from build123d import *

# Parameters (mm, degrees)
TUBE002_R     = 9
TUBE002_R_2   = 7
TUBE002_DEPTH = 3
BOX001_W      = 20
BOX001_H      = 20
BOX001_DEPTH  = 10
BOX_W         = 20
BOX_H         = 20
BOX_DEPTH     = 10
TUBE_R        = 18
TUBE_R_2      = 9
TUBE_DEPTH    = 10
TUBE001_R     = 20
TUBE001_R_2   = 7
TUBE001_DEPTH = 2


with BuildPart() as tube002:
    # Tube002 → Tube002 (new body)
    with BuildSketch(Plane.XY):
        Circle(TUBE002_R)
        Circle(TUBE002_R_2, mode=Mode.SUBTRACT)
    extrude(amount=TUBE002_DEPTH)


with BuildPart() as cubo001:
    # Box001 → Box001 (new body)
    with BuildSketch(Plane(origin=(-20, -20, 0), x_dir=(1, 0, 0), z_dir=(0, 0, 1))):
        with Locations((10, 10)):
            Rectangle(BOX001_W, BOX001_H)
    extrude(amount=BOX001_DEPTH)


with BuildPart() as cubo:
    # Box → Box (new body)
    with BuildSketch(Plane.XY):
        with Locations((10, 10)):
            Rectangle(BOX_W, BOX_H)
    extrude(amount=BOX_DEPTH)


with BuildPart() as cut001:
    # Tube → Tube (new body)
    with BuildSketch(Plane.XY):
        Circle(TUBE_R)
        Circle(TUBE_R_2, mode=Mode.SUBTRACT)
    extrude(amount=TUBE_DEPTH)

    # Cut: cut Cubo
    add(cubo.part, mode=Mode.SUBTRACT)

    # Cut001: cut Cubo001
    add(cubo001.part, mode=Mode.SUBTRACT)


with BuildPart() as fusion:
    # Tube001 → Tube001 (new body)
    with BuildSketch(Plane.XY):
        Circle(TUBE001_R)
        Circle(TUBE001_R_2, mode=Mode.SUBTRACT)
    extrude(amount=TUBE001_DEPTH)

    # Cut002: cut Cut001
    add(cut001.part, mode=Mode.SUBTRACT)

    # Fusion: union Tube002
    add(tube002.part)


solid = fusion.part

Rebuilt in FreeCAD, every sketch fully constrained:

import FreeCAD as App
import Part
import Sketcher

doc = App.newDocument("Part")
body = doc.addObject("PartDesign::Body", "Body")

# Sketch on XY plane
sketch1 = body.newObject("Sketcher::SketchObject", "Sketch")
sketch1.AttachmentSupport = (doc.getObject("XY_Plane"), [""])
sketch1.MapMode = "FlatFace"
sketch1.addGeometry([
    Part.Circle(App.Vector(0, 0, 0), App.Vector(0, 0, 1), 9),
    Part.Circle(App.Vector(0, 0, 0), App.Vector(0, 0, 1), 7),
], False)
sketch1.addConstraint([
    Sketcher.Constraint("Coincident", 0, 3, -1, 1),
    Sketcher.Constraint("Coincident", 1, 3, -1, 1),
    Sketcher.Constraint("Diameter", 0, 18.0),
    Sketcher.Constraint("Diameter", 1, 14.0),
])
pad1 = body.newObject("PartDesign::Pad", "Pad")
pad1.Profile = sketch1
pad1.Length = 3
body2 = doc.addObject("PartDesign::Body", "Body001")

# Sketch on XY plane
sketch2 = body2.newObject("Sketcher::SketchObject", "Sketch001")
sketch2.AttachmentSupport = (doc.getObject("XY_Plane001"), [""])
sketch2.MapMode = "FlatFace"
sketch2.addGeometry([
    Part.LineSegment(App.Vector(-20, 0, 0), App.Vector(-20, -20, 0)),
    Part.LineSegment(App.Vector(-20, -20, 0), App.Vector(0, -20, 0)),
    Part.LineSegment(App.Vector(0, -20, 0), App.Vector(0, 0, 0)),
    Part.LineSegment(App.Vector(0, 0, 0), App.Vector(-20, 0, 0)),
], False)
sketch2.addConstraint([
    Sketcher.Constraint("Coincident", 0, 2, 1, 1),
    Sketcher.Constraint("Coincident", 1, 2, 2, 1),
    Sketcher.Constraint("Coincident", 2, 2, 3, 1),
    Sketcher.Constraint("Coincident", 3, 2, 0, 1),
    Sketcher.Constraint("Vertical", 0),
    Sketcher.Constraint("Horizontal", 1),
    Sketcher.Constraint("Vertical", 2),
    Sketcher.Constraint("Horizontal", 3),
    Sketcher.Constraint("Coincident", 2, 2, -1, 1),
    Sketcher.Constraint("Equal", 3, 0),
    Sketcher.Constraint("DistanceX", 1, 1, 1, 2, 20.0),
])
pad2 = body2.newObject("PartDesign::Pad", "Pad001")
pad2.Profile = sketch2
pad2.Length = 10
body3 = doc.addObject("PartDesign::Body", "Body002")

# Sketch on XY plane
sketch3 = body3.newObject("Sketcher::SketchObject", "Sketch002")
sketch3.AttachmentSupport = (doc.getObject("XY_Plane002"), [""])
sketch3.MapMode = "FlatFace"
sketch3.addGeometry([
    Part.LineSegment(App.Vector(0, 20, 0), App.Vector(0, 0, 0)),
    Part.LineSegment(App.Vector(0, 0, 0), App.Vector(20, 0, 0)),
    Part.LineSegment(App.Vector(20, 0, 0), App.Vector(20, 20, 0)),
    Part.LineSegment(App.Vector(20, 20, 0), App.Vector(0, 20, 0)),
], False)
sketch3.addConstraint([
    Sketcher.Constraint("Coincident", 0, 2, 1, 1),
    Sketcher.Constraint("Coincident", 1, 2, 2, 1),
    Sketcher.Constraint("Coincident", 2, 2, 3, 1),
    Sketcher.Constraint("Coincident", 3, 2, 0, 1),
    Sketcher.Constraint("Vertical", 0),
    Sketcher.Constraint("Horizontal", 1),
    Sketcher.Constraint("Vertical", 2),
    Sketcher.Constraint("Horizontal", 3),
    Sketcher.Constraint("Coincident", 0, 2, -1, 1),
    Sketcher.Constraint("Equal", 3, 0),
    Sketcher.Constraint("DistanceX", 1, 1, 1, 2, 20.0),
])
pad3 = body3.newObject("PartDesign::Pad", "Pad002")
pad3.Profile = sketch3
pad3.Length = 10
body4 = doc.addObject("PartDesign::Body", "Body003")
body4.AllowCompound = True

# Sketch on XY plane
sketch4 = body4.newObject("Sketcher::SketchObject", "Sketch003")
sketch4.AttachmentSupport = (doc.getObject("XY_Plane003"), [""])
sketch4.MapMode = "FlatFace"
sketch4.addGeometry([
    Part.Circle(App.Vector(0, 0, 0), App.Vector(0, 0, 1), 18),
    Part.Circle(App.Vector(0, 0, 0), App.Vector(0, 0, 1), 9),
], False)
sketch4.addConstraint([
    Sketcher.Constraint("Coincident", 0, 3, -1, 1),
    Sketcher.Constraint("Coincident", 1, 3, -1, 1),
    Sketcher.Constraint("Diameter", 0, 36.0),
    Sketcher.Constraint("Diameter", 1, 18.0),
])
pad4 = body4.newObject("PartDesign::Pad", "Pad003")
pad4.Profile = sketch4
pad4.Length = 10
doc.recompute()

boolean = body4.newObject("PartDesign::Boolean", "Boolean")
boolean.Type = "Cut"
boolean.addObjects([body3])
doc.recompute()

boolean2 = body4.newObject("PartDesign::Boolean", "Boolean001")
boolean2.Type = "Cut"
boolean2.addObjects([body2])
body5 = doc.addObject("PartDesign::Body", "Body004")

# Sketch on XY plane
sketch5 = body5.newObject("Sketcher::SketchObject", "Sketch004")
sketch5.AttachmentSupport = (doc.getObject("XY_Plane004"), [""])
sketch5.MapMode = "FlatFace"
sketch5.addGeometry([
    Part.Circle(App.Vector(0, 0, 0), App.Vector(0, 0, 1), 20),
    Part.Circle(App.Vector(0, 0, 0), App.Vector(0, 0, 1), 7),
], False)
sketch5.addConstraint([
    Sketcher.Constraint("Coincident", 0, 3, -1, 1),
    Sketcher.Constraint("Coincident", 1, 3, -1, 1),
    Sketcher.Constraint("Diameter", 0, 40.0),
    Sketcher.Constraint("Diameter", 1, 14.0),
])
pad5 = body5.newObject("PartDesign::Pad", "Pad004")
pad5.Profile = sketch5
pad5.Length = 2
doc.recompute()

boolean3 = body5.newObject("PartDesign::Boolean", "Boolean002")
boolean3.Type = "Cut"
boolean3.addObjects([body4])
doc.recompute()

boolean4 = body5.newObject("PartDesign::Boolean", "Boolean003")
boolean4.Type = "Fuse"
boolean4.addObjects([body])

doc.recompute()
